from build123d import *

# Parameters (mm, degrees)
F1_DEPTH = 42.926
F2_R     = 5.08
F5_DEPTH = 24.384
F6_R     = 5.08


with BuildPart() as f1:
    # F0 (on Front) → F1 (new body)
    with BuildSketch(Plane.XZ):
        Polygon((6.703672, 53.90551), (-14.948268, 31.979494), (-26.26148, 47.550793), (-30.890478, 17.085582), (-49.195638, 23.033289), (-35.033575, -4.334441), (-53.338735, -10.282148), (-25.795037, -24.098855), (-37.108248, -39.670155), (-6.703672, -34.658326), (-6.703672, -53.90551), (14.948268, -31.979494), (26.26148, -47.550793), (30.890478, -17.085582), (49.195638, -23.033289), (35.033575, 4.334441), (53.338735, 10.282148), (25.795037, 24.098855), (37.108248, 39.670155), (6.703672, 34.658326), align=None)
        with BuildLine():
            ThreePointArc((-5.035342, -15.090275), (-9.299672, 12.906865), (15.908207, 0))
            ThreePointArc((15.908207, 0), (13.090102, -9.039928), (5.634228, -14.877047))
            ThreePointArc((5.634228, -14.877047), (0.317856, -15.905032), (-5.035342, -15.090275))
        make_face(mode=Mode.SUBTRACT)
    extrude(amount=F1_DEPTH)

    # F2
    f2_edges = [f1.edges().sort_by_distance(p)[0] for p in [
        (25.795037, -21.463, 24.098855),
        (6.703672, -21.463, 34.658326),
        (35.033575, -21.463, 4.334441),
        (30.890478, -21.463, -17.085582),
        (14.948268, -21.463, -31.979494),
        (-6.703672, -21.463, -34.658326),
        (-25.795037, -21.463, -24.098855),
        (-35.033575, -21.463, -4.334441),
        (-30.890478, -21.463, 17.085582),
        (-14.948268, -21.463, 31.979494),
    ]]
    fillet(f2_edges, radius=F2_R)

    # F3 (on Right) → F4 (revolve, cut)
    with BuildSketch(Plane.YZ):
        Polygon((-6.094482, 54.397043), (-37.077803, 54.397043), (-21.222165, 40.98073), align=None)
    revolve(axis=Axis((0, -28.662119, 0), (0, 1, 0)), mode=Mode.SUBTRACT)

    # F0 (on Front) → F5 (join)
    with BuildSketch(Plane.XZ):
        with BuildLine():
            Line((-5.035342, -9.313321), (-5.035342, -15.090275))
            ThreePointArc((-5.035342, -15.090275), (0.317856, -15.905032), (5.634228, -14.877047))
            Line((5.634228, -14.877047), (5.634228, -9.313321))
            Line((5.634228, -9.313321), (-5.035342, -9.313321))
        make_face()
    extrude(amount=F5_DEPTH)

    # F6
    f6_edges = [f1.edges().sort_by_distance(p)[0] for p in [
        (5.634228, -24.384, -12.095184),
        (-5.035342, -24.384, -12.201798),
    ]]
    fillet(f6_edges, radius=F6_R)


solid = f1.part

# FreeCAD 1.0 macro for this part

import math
import FreeCAD as App
import Part
import Sketcher
Q = App.Units.Quantity


def edges_at(feature, points):
    """Names of the edges that pass closest to the given points."""
    edges = feature.Shape.Edges
    near = lambda p: min(range(len(edges)), key=lambda i: edges[i].distToShape(Part.Vertex(*p))[0])
    return sorted({f"Edge{near(p) + 1}" for p in points})


def add_polygon(sketch, points):
    """Adds a closed chain of lines whose ends are joined by coincident constraints."""
    first, n = sketch.GeometryCount, len(points)
    for a, b in zip(points, points[1:] + points[:1]):
        sketch.addGeometry(Part.LineSegment(App.Vector(*a, 0), App.Vector(*b, 0)), False)
    for i in range(n):
        sketch.addConstraint(Sketcher.Constraint("Coincident", first + i, 2, first + (i + 1) % n, 1))

doc = App.newDocument("Part")
body = doc.addObject("PartDesign::Body", "Body")

# Sketch on XZ plane
sketch1 = body.newObject("Sketcher::SketchObject", "Sketch")
sketch1.AttachmentSupport = (doc.getObject("XZ_Plane"), [""])
sketch1.MapMode = "FlatFace"
add_polygon(sketch1, [(6.703672, 53.90551), (-14.948268, 31.979494), (-26.26148, 47.550793), (-30.890478, 17.085582), (-49.195638, 23.033289), (-35.033575, -4.334441), (-53.338735, -10.282148), (-25.795037, -24.098855), (-37.108248, -39.670155), (-6.703672, -34.658326), (-6.703672, -53.90551), (14.948268, -31.979494), (26.26148, -47.550793), (30.890478, -17.085582), (49.195638, -23.033289), (35.033575, 4.334441), (53.338735, 10.282148), (25.795037, 24.098855), (37.108248, 39.670155), (6.703672, 34.658326)])  # lines 0-19
sketch1.addGeometry(Part.ArcOfCircle(Part.Circle(App.Vector(-0.000001, -0.000008, 0), App.Vector(0, 0, 1), 15.9082), math.radians(-108.452895), math.radians(-69.257333)), False)  # 20
sketch1.addGeometry(Part.ArcOfCircle(Part.Circle(App.Vector(0, 0, 0), App.Vector(0, 0, 1), 15.908207), math.radians(0.000001), math.radians(251.547113)), False)  # 21
sketch1.addGeometry(Part.ArcOfCircle(Part.Circle(App.Vector(0.000002, -0.000002, 0), App.Vector(0, 0, 1), 15.908205), math.radians(-69.257351), math.radians(0.000007)), False)  # 22
sketch1.addConstraint([
    Sketcher.Constraint("Coincident", 20, 1, 21, 2),
    Sketcher.Constraint("Coincident", 21, 1, 22, 2),
    Sketcher.Constraint("Coincident", 22, 1, 20, 2),
    Sketcher.Constraint("Vertical", 9),
    Sketcher.Constraint("Vertical", 19),
    Sketcher.Constraint("Coincident", 20, 3, -1, 1),
    Sketcher.Constraint("Coincident", 21, 3, -1, 1),
    Sketcher.Constraint("PointOnObject", 22, 3, -1),
    Sketcher.Constraint("PointOnObject", 21, 1, -1),
    Sketcher.Constraint("Radius", 20, 15.9082),
    Sketcher.Constraint("DistanceY", 0, 2, 1, 2, 15.571299),
    Sketcher.Constraint("DistanceY", 20, 3, 1, 2, 47.550801),
    Sketcher.Constraint("DistanceX", 2, 2, 1, 2, 4.628998),
    Sketcher.Constraint("DistanceY", 7, 2, 6, 2, 15.5713),
    Sketcher.Constraint("DistanceY", 9, 2, 20, 3, 53.905502),
    Sketcher.Constraint("DistanceY", 11, 2, 10, 2, 15.571299),
    Sketcher.Constraint("DistanceX", 11, 2, 12, 2, 4.628998),
    Sketcher.Constraint("DistanceY", 16, 2, 17, 2, 15.5713),
    Sketcher.Constraint("DistanceY", 9, 2, 9, 1, 19.247184),
    Sketcher.Constraint("DistanceY", 19, 1, 19, 2, 19.247184),
    Sketcher.Constraint("DistanceX", 1, 2, -1, 1, 26.26148),
    Sketcher.Constraint("DistanceY", -1, 1, 2, 2, 17.085582),
    Sketcher.Constraint("DistanceX", 3, 2, -1, 1, 49.195638),
    Sketcher.Constraint("DistanceY", -1, 1, 3, 2, 23.033289),
    Sketcher.Constraint("DistanceY", 4, 2, -1, 1, 4.334441),
    Sketcher.Constraint("DistanceX", 7, 2, -1, 1, 37.108248),
    Sketcher.Constraint("DistanceX", -1, 1, 11, 2, 26.26148),
    Sketcher.Constraint("DistanceY", 12, 2, -1, 1, 17.085582),
    Sketcher.Constraint("DistanceX", -1, 1, 13, 2, 49.195638),
    Sketcher.Constraint("DistanceY", 13, 2, -1, 1, 23.033289),
    Sketcher.Constraint("DistanceY", -1, 1, 14, 2, 4.334441),
    Sketcher.Constraint("DistanceX", -1, 1, 17, 2, 37.108248),
    Sketcher.Constraint("DistanceY", -1, 1, 19, 2, 53.90551),
    Sketcher.Constraint("DistanceX", 0, 2, 22, 3, 14.94827),
    Sketcher.Constraint("DistanceX", 5, 2, 4, 2, 18.30516),
    Sketcher.Constraint("DistanceY", 5, 2, 2, 2, 27.36773),
    Sketcher.Constraint("DistanceX", 6, 2, 22, 3, 25.795039),
    Sketcher.Constraint("DistanceY", 8, 2, 6, 2, 10.559471),
    Sketcher.Constraint("DistanceX", 8, 2, 20, 3, 6.703671),
    Sketcher.Constraint("DistanceX", 8, 2, 10, 2, 21.65194),
    Sketcher.Constraint("DistanceY", 11, 2, 22, 3, 47.550791),
    Sketcher.Constraint("DistanceX", 14, 2, 15, 2, 18.30516),
    Sketcher.Constraint("DistanceY", 12, 2, 15, 2, 27.36773),
    Sketcher.Constraint("DistanceX", 16, 2, 17, 2, 11.313211),
    Sketcher.Constraint("DistanceY", 0, 2, 17, 2, 7.690661),
    Sketcher.Constraint("DistanceX", 0, 2, 18, 2, 21.65194),
    Sketcher.Constraint("DistanceX", 20, 1, 20, 3, 5.035341),
    Sketcher.Constraint("DistanceX", 20, 1, 22, 1, 10.66957),
    Sketcher.Constraint("Distance", 4, 30.814877),
    Sketcher.Constraint("Distance", 14, 30.814877),
])
pad1 = body.newObject("PartDesign::Pad", "Pad")
pad1.Profile = sketch1
pad1.Length = Q("1.69 in")
doc.recompute()

fillet = body.newObject("PartDesign::Fillet", "Fillet")
fillet.Base = (pad1, edges_at(pad1, [
    (25.795, -21.463, 24.099),
    (6.704, -21.463, 34.658),
    (35.034, -21.463, 4.334),
    (30.89, -21.463, -17.086),
    (14.948, -21.463, -31.979),
    (-6.704, -21.463, -34.658),
    (-25.795, -21.463, -24.099),
    (-35.034, -21.463, -4.334),
    (-30.89, -21.463, 17.086),
    (-14.948, -21.463, 31.979),
]))
fillet.Radius = Q("0.2 in")

# Sketch on YZ plane
sketch2 = body.newObject("Sketcher::SketchObject", "Sketch001")
sketch2.AttachmentSupport = (doc.getObject("YZ_Plane"), [""])
sketch2.MapMode = "FlatFace"
add_polygon(sketch2, [(-6.094482, 54.397043), (-37.077803, 54.397043), (-21.222165, 40.98073)])  # lines 0-2
sketch2.addConstraint([
    Sketcher.Constraint("Horizontal", 0),
    Sketcher.Constraint("DistanceX", 0, 2, 0, 1, 30.983321),
    Sketcher.Constraint("Distance", 1, 20.77014),
    Sketcher.Constraint("DistanceY", -1, 1, 1, 2, 40.98073),
    Sketcher.Constraint("DistanceX", 0, 2, 1, 2, 15.855638),
    Sketcher.Constraint("DistanceX", 0, 2, -1, 1, 37.077803),
])
groove = body.newObject("PartDesign::Groove", "Groove")
groove.Profile = sketch2
groove.ReferenceAxis = (sketch2, ["H_Axis"])
groove.Angle = 360

# Sketch on XZ plane
sketch3 = body.newObject("Sketcher::SketchObject", "Sketch002")
sketch3.AttachmentSupport = (doc.getObject("XZ_Plane"), [""])
sketch3.MapMode = "FlatFace"
sketch3.addGeometry([
    Part.LineSegment(App.Vector(-5.035342, -9.313321, 0), App.Vector(-5.035342, -15.090275, 0)),
    Part.ArcOfCircle(Part.Circle(App.Vector(-0.000001, -0.000008, 0), App.Vector(0, 0, 1), 15.9082), math.radians(-108.452895), math.radians(-69.257333)),
    Part.LineSegment(App.Vector(5.634228, -14.877047, 0), App.Vector(5.634228, -9.313321, 0)),
    Part.LineSegment(App.Vector(5.634228, -9.313321, 0), App.Vector(-5.035342, -9.313321, 0)),
], False)
sketch3.addConstraint([
    Sketcher.Constraint("Coincident", 0, 2, 1, 1),
    Sketcher.Constraint("Coincident", 1, 2, 2, 1),
    Sketcher.Constraint("Coincident", 2, 2, 3, 1),
    Sketcher.Constraint("Coincident", 3, 2, 0, 1),
    Sketcher.Constraint("Vertical", 0),
    Sketcher.Constraint("Vertical", 2),
    Sketcher.Constraint("Horizontal", 3),
    Sketcher.Constraint("Coincident", 1, 3, -1, 1),
    Sketcher.Constraint("Radius", 1, 15.9082),
    Sketcher.Constraint("DistanceX", 3, 2, 3, 1, 10.66957),
    Sketcher.Constraint("DistanceY", 0, 2, 0, 1, 5.776954),
    Sketcher.Constraint("DistanceY", 2, 1, 2, 2, 5.563726),
])
pad2 = body.newObject("PartDesign::Pad", "Pad001")
pad2.Profile = sketch3
pad2.Length = Q("0.96 in")
doc.recompute()

fillet2 = body.newObject("PartDesign::Fillet", "Fillet001")
fillet2.Base = (pad2, edges_at(pad2, [(5.634, -24.384, -12.095), (-5.035, -24.384, -12.202)]))
fillet2.Radius = Q("0.2 in")

doc.recompute()
